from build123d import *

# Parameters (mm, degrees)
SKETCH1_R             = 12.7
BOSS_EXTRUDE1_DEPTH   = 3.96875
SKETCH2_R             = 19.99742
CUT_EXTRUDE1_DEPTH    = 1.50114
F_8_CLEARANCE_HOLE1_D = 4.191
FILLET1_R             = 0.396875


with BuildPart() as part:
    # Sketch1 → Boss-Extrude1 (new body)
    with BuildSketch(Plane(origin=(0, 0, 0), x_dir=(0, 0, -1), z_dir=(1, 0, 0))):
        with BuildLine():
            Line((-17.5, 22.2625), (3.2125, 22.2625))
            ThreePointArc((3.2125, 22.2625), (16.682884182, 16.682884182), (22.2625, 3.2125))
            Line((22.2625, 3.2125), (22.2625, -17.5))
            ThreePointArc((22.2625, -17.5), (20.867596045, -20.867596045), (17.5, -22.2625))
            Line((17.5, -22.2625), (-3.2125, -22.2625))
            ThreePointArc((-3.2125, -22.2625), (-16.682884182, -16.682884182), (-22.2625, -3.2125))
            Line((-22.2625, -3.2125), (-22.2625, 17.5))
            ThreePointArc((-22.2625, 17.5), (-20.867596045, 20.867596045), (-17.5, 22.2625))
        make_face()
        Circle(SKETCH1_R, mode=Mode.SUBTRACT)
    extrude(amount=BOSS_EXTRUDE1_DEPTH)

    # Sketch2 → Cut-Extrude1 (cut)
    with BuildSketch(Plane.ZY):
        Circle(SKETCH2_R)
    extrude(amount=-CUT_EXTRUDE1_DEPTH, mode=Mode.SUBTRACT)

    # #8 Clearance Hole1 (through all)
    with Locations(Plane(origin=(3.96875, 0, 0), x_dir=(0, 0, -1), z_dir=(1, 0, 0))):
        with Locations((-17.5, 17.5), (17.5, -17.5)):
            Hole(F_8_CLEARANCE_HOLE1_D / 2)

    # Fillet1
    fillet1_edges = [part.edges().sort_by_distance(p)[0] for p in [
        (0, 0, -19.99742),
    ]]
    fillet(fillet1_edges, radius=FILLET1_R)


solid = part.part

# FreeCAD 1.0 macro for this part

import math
import FreeCAD as App
import Part
import Sketcher
Q = App.Units.Quantity


def edges_at(feature, points):
    """Names of the edges that pass closest to the given points."""
    edges = feature.Shape.Edges
    near = lambda p: min(range(len(edges)), key=lambda i: edges[i].distToShape(Part.Vertex(*p))[0])
    return sorted({f"Edge{near(p) + 1}" for p in points})

doc = App.newDocument("Part")
body = doc.addObject("PartDesign::Body", "Body")

# Sketch on YZ plane
sketch1 = body.newObject("Sketcher::SketchObject", "Sketch")
sketch1.AttachmentSupport = (doc.getObject("YZ_Plane"), [""])
sketch1.MapMode = "FlatFace"
sketch1.addGeometry([
    Part.LineSegment(App.Vector(22.3, -3.2, 0), App.Vector(22.3, 17.5, 0)),  # 0
    Part.ArcOfCircle(Part.Circle(App.Vector(17.5, 17.5, 0), App.Vector(0, 0, 1), 4.8), math.radians(0), math.radians(90)),  # 1
    Part.LineSegment(App.Vector(17.5, 22.3, 0), App.Vector(-3.2, 22.3, 0)),  # 2
    Part.ArcOfCircle(Part.Circle(App.Vector(-3.2, 3.2, 0), App.Vector(0, 0, 1), 19), math.radians(90), math.radians(180)),  # 3
    Part.LineSegment(App.Vector(-22.3, 3.2, 0), App.Vector(-22.3, -17.5, 0)),  # 4
    Part.ArcOfCircle(Part.Circle(App.Vector(-17.5, -17.5, 0), App.Vector(0, 0, 1), 4.8), math.radians(-180), math.radians(-90)),  # 5
    Part.LineSegment(App.Vector(-17.5, -22.3, 0), App.Vector(3.2, -22.3, 0)),  # 6
    Part.ArcOfCircle(Part.Circle(App.Vector(3.2, -3.2, 0), App.Vector(0, 0, 1), 19), math.radians(-90), math.radians(0)),  # 7
    Part.Circle(App.Vector(0, 0, 0), App.Vector(0, 0, 1), 12.7),  # 8
], False)
sketch1.addConstraint([
    Sketcher.Constraint("Tangent", 0, 2, 1, 1),
    Sketcher.Constraint("Tangent", 1, 2, 2, 1),
    Sketcher.Constraint("Tangent", 2, 2, 3, 1),
    Sketcher.Constraint("Tangent", 3, 2, 4, 1),
    Sketcher.Constraint("Tangent", 4, 2, 5, 1),
    Sketcher.Constraint("Tangent", 5, 2, 6, 1),
    Sketcher.Constraint("Tangent", 6, 2, 7, 1),
    Sketcher.Constraint("Tangent", 7, 2, 0, 1),
    Sketcher.Constraint("Vertical", 0),
    Sketcher.Constraint("Horizontal", 2),
    Sketcher.Constraint("Vertical", 4),
    Sketcher.Constraint("Horizontal", 6),
    Sketcher.Constraint("Coincident", 8, 3, -1, 1),
    Sketcher.Constraint("Equal", 1, 5),
    Sketcher.Constraint("Equal", 3, 7),
    Sketcher.Constraint("Symmetric", 1, 3, 5, 3, -1, 1),
    Sketcher.Constraint("Equal", 6, 0),
    Sketcher.Constraint("Diameter", 8, Q("1 in")),
    Sketcher.Constraint("Radius", 3, Q("0.75 in")),
    Sketcher.Constraint("Radius", 1, Q("0.1875 in")),
    Sketcher.Constraint("DistanceX", 2, 2, 2, 1, Q("20.7125 mm")),
])
pad1 = body.newObject("PartDesign::Pad", "Pad")
pad1.Profile = sketch1
pad1.Length = Q("0.15625 in")

# Sketch on YZ plane
sketch2 = body.newObject("Sketcher::SketchObject", "Sketch001")
sketch2.AttachmentSupport = (doc.getObject("YZ_Plane"), [""])
sketch2.MapMode = "FlatFace"
sketch2.addGeometry(Part.Circle(App.Vector(0, 0, 0), App.Vector(0, 0, 1), 20), False)
sketch2.addConstraint([
    Sketcher.Constraint("Coincident", 0, 3, -1, 1),
    Sketcher.Constraint("Diameter", 0, Q("1.5746 in")),
])
pocket1 = body.newObject("PartDesign::Pocket", "Pocket")
pocket1.Profile = sketch2
pocket1.Length = Q("0.0591 in")
pocket1.Reversed = True

# Sketch on YZ plane
sketch3 = body.newObject("Sketcher::SketchObject", "Sketch002")
sketch3.AttachmentSupport = (doc.getObject("YZ_Plane"), [""])
sketch3.MapMode = "FlatFace"
sketch3.AttachmentOffset = App.Placement(App.Vector(0, 0, 0.15625 * 25.4), App.Rotation())
sketch3.addGeometry([
    Part.Circle(App.Vector(17.5, 17.5, 0), App.Vector(0, 0, 1), 2.1),
    Part.Circle(App.Vector(-17.5, -17.5, 0), App.Vector(0, 0, 1), 2.1),
], False)
sketch3.addConstraint([
    Sketcher.Constraint("Equal", 0, 1),
    Sketcher.Constraint("Symmetric", 0, 3, 1, 3, -1, 1),
    Sketcher.Constraint("Diameter", 0, Q("0.165 in")),
    Sketcher.Constraint("DistanceX", -1, 1, 0, 3, Q("17.5 mm")),
    Sketcher.Constraint("DistanceY", -1, 1, 0, 3, Q("17.5 mm")),
])
doc.recompute()
hole = body.newObject("PartDesign::Hole", "Hole")
hole.Profile = sketch3
hole.ThreadType = "None"
hole.Diameter = Q("0.165 in")
hole.DepthType = "ThroughAll"
doc.recompute()

fillet = body.newObject("PartDesign::Fillet", "Fillet")
fillet.Base = (hole, edges_at(hole, [(0, 0, -19.997)]))
fillet.Radius = Q("0.015625 in")

doc.recompute()
